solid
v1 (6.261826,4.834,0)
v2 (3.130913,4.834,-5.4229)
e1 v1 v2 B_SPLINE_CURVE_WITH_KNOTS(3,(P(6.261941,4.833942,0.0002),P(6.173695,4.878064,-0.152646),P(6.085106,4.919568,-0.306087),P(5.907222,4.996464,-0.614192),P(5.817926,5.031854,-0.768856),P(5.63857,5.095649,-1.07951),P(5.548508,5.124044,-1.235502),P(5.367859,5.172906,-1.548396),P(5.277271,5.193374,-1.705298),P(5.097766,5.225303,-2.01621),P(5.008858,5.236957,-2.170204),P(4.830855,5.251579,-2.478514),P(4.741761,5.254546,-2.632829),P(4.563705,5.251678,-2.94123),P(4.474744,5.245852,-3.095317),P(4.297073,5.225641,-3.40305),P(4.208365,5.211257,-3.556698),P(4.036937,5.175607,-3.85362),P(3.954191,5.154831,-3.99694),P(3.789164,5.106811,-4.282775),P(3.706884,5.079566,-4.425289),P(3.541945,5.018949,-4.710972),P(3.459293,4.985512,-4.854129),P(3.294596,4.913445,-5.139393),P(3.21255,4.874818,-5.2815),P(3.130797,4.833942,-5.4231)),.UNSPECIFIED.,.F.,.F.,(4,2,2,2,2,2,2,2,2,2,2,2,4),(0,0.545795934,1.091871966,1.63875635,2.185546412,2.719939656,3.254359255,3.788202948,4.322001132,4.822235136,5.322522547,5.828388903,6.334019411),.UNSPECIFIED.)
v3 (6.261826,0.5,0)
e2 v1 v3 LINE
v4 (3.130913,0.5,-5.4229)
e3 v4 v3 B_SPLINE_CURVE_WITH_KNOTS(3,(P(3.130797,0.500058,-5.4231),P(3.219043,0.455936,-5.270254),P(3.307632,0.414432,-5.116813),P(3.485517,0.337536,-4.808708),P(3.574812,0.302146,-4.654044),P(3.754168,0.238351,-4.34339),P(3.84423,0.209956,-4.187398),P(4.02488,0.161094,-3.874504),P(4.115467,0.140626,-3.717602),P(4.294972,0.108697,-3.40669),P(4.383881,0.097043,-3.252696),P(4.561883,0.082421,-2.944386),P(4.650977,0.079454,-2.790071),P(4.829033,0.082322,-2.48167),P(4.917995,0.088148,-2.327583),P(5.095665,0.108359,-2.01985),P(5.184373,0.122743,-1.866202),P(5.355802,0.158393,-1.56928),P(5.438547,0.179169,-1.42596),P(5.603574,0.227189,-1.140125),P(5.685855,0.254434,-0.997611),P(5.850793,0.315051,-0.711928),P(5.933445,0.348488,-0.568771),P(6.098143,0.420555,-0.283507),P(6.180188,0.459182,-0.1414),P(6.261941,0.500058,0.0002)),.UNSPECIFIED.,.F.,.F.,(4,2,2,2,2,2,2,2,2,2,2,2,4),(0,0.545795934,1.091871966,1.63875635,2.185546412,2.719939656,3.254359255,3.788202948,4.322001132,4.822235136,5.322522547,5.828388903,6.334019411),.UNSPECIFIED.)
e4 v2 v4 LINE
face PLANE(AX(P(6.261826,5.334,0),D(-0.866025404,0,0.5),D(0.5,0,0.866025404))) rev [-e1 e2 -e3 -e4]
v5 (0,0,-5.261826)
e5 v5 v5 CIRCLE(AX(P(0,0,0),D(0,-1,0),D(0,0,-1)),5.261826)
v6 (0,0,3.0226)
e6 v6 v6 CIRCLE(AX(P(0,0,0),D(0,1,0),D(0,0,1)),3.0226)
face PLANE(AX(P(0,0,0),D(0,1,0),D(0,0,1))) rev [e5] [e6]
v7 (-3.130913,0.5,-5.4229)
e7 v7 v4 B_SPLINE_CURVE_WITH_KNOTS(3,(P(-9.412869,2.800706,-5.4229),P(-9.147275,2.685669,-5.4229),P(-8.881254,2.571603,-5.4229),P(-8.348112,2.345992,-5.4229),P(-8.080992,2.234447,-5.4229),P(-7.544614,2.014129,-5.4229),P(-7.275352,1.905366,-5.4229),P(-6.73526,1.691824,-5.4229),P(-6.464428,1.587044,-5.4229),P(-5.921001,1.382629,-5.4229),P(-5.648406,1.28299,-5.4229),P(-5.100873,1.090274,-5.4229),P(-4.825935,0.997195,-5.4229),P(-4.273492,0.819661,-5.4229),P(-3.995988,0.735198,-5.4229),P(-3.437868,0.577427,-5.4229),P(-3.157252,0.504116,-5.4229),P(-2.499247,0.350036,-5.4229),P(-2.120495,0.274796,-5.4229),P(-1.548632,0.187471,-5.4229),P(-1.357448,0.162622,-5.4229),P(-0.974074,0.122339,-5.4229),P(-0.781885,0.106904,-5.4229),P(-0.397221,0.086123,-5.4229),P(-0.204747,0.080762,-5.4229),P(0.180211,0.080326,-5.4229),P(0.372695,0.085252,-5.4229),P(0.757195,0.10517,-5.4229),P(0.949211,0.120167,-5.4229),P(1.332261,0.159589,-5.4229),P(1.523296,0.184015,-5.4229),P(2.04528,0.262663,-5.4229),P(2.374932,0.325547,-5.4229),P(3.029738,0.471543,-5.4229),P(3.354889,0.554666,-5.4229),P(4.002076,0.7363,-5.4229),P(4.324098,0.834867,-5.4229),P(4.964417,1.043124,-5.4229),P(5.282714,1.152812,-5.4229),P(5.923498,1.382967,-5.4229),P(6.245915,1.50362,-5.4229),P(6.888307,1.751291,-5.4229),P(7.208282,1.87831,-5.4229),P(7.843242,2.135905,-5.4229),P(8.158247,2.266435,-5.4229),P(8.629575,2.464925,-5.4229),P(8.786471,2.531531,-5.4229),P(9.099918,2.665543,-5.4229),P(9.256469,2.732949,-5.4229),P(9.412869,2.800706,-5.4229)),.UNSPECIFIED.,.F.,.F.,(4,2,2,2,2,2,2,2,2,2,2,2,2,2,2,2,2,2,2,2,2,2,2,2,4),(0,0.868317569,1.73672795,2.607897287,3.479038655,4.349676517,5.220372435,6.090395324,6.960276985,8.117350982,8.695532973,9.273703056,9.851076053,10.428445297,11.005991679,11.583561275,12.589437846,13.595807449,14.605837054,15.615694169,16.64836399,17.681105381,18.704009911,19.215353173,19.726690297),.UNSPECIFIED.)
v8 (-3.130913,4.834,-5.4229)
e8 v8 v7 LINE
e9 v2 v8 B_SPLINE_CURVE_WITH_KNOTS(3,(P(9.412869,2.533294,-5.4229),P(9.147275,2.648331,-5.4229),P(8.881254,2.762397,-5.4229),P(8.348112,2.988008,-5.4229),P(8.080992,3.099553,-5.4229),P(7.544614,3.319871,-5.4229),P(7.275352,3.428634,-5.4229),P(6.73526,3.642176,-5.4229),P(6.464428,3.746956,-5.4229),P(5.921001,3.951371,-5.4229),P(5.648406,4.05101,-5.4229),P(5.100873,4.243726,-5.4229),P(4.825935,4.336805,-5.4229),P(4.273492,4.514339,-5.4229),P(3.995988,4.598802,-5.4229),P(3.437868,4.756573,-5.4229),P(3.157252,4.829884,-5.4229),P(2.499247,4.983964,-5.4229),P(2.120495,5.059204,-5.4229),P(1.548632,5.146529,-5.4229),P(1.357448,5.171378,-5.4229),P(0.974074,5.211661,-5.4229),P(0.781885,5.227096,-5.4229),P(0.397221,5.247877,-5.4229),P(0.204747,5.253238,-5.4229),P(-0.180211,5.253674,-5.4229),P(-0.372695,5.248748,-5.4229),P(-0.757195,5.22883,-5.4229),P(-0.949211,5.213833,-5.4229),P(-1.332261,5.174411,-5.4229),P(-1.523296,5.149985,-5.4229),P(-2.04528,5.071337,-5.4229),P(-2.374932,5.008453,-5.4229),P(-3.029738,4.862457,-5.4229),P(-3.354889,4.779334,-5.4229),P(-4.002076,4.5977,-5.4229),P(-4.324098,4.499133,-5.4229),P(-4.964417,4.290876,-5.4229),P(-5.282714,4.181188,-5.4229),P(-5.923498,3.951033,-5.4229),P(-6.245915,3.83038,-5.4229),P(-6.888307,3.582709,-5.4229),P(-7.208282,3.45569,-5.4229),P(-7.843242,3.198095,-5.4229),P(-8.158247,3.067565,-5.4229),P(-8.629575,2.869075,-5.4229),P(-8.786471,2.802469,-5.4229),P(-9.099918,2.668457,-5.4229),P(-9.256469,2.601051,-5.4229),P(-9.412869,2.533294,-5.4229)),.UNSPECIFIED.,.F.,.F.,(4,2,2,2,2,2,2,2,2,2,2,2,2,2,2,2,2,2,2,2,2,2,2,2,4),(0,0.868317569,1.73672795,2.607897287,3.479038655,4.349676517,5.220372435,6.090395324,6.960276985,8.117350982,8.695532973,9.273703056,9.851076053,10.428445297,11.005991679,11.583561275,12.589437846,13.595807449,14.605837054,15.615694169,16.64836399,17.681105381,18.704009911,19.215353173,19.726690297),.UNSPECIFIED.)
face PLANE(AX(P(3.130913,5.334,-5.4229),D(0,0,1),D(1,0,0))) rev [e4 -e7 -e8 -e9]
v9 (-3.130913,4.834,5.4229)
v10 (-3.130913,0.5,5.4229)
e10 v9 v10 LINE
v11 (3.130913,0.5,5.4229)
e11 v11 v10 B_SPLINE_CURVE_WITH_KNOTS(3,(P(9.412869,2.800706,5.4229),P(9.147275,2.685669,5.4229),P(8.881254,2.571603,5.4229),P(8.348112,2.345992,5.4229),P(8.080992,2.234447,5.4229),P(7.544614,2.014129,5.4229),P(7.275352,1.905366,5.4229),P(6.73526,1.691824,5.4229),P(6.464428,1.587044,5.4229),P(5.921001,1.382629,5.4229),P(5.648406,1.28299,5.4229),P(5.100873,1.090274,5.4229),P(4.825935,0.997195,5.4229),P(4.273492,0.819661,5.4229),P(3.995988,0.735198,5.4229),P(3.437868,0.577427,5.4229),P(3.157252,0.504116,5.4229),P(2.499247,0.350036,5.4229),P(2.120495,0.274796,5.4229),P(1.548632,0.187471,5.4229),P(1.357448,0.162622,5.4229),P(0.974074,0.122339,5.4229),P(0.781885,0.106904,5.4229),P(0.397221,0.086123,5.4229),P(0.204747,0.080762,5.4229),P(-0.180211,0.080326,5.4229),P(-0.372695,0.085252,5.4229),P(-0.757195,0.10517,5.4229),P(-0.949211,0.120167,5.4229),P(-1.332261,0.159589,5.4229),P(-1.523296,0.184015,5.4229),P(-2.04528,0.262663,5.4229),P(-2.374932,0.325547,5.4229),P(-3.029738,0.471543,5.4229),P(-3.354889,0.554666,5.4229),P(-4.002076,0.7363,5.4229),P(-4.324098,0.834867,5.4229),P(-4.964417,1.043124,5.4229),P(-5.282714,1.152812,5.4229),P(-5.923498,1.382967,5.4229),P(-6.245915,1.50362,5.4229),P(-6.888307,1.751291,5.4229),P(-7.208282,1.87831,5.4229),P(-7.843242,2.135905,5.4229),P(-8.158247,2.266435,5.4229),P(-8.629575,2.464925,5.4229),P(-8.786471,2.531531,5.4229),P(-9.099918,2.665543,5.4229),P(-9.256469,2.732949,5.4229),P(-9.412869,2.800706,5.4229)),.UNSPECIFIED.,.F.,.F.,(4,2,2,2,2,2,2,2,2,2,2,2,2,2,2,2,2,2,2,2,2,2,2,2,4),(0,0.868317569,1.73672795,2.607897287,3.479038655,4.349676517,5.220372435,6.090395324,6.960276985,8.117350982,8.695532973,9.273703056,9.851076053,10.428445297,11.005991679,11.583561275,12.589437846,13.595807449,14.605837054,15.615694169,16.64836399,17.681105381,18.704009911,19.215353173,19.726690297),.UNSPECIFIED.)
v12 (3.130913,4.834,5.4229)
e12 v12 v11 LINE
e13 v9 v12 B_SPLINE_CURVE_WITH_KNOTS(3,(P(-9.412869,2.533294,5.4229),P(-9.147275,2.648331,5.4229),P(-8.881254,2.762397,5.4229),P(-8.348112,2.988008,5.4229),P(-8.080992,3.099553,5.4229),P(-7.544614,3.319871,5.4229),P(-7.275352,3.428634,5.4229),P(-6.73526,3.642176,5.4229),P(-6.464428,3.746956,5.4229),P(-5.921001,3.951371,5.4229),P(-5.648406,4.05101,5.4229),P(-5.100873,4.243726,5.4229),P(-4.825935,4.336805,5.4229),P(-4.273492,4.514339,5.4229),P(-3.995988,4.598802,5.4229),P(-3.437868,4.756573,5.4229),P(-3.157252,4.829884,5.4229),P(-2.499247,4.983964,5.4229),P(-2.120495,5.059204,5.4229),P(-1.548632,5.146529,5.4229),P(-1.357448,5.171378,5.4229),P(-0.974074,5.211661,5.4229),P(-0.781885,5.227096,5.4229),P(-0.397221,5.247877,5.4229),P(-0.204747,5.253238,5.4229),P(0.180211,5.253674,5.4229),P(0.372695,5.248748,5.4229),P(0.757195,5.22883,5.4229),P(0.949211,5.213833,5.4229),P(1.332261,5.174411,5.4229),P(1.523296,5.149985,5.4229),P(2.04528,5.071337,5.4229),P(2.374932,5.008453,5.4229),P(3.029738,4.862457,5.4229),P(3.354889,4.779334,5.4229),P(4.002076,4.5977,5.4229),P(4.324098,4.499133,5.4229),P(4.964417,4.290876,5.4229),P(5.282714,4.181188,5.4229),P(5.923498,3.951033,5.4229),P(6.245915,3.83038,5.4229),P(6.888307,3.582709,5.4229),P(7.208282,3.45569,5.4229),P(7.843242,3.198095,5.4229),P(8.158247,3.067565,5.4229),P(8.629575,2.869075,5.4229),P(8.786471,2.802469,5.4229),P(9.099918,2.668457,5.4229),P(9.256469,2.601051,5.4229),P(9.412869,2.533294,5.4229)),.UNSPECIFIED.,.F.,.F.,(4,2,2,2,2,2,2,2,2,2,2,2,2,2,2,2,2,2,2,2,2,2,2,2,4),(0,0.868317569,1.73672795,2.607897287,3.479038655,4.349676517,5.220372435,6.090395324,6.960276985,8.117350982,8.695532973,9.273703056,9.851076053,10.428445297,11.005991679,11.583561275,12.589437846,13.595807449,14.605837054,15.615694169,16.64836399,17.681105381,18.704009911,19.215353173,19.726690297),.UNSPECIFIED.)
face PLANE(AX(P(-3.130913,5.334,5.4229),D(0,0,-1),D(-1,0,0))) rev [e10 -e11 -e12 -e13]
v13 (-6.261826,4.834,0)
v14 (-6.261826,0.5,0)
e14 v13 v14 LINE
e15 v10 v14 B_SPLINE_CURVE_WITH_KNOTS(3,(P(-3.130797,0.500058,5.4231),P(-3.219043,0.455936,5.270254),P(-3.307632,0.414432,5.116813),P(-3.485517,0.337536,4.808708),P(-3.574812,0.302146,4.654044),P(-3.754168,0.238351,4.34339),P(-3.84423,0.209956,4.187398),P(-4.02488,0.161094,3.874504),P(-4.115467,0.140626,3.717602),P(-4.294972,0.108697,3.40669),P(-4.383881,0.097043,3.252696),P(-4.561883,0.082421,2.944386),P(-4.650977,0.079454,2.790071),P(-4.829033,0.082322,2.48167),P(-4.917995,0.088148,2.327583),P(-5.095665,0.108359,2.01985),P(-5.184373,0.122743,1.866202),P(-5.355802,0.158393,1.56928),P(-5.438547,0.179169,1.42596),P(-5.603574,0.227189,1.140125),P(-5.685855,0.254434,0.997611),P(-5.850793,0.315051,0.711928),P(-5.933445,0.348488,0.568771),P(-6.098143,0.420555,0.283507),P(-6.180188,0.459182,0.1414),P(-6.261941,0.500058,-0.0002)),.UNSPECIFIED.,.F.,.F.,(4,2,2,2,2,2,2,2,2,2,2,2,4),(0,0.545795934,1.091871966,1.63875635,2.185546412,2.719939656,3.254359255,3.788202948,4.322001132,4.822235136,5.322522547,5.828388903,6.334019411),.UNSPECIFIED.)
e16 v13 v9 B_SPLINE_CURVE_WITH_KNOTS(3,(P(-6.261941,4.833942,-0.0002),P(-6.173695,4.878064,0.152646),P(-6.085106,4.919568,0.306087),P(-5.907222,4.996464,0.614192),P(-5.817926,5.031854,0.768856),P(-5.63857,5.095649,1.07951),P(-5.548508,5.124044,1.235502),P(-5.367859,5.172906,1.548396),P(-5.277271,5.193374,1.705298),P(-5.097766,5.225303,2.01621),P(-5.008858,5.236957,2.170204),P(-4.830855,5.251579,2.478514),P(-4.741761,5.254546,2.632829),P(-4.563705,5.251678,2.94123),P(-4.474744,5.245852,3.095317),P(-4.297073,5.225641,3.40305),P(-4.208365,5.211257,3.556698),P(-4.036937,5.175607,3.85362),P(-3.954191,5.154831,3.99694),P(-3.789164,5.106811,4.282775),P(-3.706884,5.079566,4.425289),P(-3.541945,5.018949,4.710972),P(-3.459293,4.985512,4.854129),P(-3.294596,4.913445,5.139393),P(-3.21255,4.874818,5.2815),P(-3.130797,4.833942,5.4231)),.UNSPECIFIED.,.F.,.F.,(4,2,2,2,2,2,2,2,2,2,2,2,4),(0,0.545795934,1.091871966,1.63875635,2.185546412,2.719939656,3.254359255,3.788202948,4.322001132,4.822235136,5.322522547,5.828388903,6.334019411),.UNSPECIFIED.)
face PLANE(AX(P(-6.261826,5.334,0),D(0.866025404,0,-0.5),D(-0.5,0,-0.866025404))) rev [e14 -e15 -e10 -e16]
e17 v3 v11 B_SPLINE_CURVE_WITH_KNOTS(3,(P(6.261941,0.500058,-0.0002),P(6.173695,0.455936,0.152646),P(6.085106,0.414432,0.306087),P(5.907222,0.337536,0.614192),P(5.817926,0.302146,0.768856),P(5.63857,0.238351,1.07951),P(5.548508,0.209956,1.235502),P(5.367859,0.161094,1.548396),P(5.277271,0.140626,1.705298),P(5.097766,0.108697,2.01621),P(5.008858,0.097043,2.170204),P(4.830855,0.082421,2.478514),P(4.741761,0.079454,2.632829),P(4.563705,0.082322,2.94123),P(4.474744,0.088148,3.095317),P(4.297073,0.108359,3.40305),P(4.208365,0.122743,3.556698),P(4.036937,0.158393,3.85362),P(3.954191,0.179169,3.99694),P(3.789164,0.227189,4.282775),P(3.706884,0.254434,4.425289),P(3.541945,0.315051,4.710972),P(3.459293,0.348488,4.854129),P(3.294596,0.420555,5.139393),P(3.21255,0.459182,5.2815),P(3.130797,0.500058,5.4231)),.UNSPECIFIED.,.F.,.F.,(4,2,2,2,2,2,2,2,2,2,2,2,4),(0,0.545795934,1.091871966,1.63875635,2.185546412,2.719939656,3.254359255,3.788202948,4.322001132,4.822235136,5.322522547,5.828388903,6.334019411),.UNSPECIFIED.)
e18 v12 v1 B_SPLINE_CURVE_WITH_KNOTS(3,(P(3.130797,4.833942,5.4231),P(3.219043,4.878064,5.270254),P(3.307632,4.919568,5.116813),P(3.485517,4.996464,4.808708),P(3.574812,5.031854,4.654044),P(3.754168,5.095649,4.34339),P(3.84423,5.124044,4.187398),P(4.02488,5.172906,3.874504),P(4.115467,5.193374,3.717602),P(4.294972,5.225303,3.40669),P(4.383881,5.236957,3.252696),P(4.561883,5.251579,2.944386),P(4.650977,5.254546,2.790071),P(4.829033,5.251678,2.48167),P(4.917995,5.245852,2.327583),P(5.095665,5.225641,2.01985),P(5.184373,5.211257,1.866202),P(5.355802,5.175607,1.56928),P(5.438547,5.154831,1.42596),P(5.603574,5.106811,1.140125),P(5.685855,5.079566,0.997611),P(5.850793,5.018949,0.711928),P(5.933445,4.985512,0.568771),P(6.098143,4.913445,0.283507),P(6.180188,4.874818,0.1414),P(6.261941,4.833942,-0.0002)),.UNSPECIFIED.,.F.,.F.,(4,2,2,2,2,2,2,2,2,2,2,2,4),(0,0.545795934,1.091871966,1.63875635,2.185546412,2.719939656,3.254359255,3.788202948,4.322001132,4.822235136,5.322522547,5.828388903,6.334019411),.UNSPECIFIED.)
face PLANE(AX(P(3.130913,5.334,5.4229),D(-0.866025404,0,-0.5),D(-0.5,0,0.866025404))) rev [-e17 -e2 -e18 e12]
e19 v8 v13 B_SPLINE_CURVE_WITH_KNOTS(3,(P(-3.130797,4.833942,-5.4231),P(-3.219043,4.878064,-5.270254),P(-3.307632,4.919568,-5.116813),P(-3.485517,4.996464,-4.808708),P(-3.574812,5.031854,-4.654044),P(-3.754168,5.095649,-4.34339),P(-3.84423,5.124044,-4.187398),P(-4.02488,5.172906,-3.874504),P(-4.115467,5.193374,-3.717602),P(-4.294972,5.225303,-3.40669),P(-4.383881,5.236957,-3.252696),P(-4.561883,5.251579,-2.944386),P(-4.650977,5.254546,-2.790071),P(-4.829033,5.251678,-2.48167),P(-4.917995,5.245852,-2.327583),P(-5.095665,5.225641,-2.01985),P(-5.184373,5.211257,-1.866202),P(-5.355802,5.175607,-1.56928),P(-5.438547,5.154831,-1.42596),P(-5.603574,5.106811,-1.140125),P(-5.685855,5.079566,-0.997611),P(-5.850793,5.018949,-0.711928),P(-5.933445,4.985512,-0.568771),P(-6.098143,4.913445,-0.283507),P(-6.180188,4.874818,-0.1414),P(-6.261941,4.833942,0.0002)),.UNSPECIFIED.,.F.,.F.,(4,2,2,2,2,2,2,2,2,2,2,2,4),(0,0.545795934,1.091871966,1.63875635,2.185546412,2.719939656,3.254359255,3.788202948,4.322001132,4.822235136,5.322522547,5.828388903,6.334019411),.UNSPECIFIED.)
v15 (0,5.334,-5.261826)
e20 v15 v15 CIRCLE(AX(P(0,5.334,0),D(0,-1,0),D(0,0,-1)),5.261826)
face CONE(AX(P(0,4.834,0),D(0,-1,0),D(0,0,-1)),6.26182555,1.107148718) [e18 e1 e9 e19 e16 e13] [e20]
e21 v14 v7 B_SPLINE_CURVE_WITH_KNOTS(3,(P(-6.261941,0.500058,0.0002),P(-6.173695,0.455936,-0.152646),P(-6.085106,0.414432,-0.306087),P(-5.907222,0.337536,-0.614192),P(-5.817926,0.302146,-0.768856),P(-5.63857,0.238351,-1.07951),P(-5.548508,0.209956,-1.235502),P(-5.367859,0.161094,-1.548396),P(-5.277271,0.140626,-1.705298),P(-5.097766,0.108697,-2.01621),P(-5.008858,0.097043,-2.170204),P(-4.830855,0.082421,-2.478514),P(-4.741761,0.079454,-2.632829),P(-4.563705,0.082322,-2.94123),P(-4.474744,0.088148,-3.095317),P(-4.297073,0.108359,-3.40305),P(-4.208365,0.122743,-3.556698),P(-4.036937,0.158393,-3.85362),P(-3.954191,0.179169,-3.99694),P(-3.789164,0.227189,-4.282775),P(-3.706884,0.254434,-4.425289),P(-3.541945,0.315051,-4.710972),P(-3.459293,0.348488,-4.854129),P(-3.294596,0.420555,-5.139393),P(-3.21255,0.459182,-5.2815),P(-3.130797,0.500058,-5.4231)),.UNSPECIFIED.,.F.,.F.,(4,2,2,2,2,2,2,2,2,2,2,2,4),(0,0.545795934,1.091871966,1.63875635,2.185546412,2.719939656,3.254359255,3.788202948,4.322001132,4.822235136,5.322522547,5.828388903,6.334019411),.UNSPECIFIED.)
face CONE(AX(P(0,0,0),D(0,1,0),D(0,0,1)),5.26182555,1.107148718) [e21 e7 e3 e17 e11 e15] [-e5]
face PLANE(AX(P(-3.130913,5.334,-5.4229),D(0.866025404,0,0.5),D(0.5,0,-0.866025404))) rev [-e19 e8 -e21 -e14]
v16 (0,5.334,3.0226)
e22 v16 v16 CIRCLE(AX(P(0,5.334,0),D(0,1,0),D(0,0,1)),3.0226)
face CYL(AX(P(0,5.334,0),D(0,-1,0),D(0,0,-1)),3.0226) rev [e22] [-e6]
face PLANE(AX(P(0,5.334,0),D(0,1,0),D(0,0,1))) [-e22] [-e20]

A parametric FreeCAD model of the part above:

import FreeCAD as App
import Part
import Sketcher
from FreeCAD import Vector
Q = App.Units.Quantity


def add_polygon(sketch, points):
    """Adds a closed chain of lines whose ends are joined by coincident constraints."""
    first, n = sketch.GeometryCount, len(points)
    for a, b in zip(points, points[1:] + points[:1]):
        sketch.addGeometry(Part.LineSegment(App.Vector(*a, 0), App.Vector(*b, 0)), False)
    for i in range(n):
        sketch.addConstraint(Sketcher.Constraint("Coincident", first + i, 2, first + (i + 1) % n, 1))

doc = App.newDocument("Part")
body = doc.addObject("PartDesign::Body", "Body")

# Sketch on XZ plane
sketch1 = doc.addObject("Sketcher::SketchObject", "Sketch")
body.addObject(sketch1)
sketch1.AttachmentSupport = (doc.XZ_Plane, [""])
sketch1.MapMode = "FlatFace"
add_polygon(sketch1, [(-6.3, 0), (-3.1, 5.4), (3.1, 5.4), (6.3, 0), (3.1, -5.4), (-3.1, -5.4)])  # lines 0-5
sketch1.addGeometry(Part.Circle(Vector(0, 0, 0), Vector(0, 0, 1), 3), False)  # 6
sketch1.addConstraint(Sketcher.Constraint("Horizontal", 1))
sketch1.addConstraint(Sketcher.Constraint("Horizontal", 4))
sketch1.addConstraint(Sketcher.Constraint("Coincident", 6, 3, -1, 1))
sketch1.addConstraint(Sketcher.Constraint("Symmetric", 0, 2, 3, 2, -1, 1))
sketch1.addConstraint(Sketcher.Constraint("Symmetric", 2, 2, 5, 2, -1, 1))
sketch1.addConstraint(Sketcher.Constraint("PointOnObject", 2, 2, -1))
sketch1.addConstraint(Sketcher.Constraint("Parallel", 2, 5))
sketch1.addConstraint(Sketcher.Constraint("Vertical", 1, 2, 3, 2))
sketch1.addConstraint(Sketcher.Constraint("Angle", 0, Q("60 deg")))
sketch1.addConstraint(Sketcher.Constraint("Diameter", 6, Q("6.0452 mm")))
sketch1.addConstraint(Sketcher.Constraint("DistanceY", -1, 1, 0, 2, Q("5.4229 mm")))
sketch1.addConstraint(Sketcher.Constraint("DistanceX", 1, 1, 1, 2, Q("6.261826 mm")))
pad1 = doc.addObject("PartDesign::Pad", "Pad")
body.addObject(pad1)
pad1.Profile = sketch1
pad1.Length = 5.334
pad1.Reversed = True

# Sketch on XY plane
sketch2 = doc.addObject("Sketcher::SketchObject", "Sketch001")
body.addObject(sketch2)
sketch2.AttachmentSupport = (doc.XY_Plane, [""])
sketch2.MapMode = "FlatFace"
add_polygon(sketch2, [(-6.3, 5.3), (-6.3, 4.8), (-5.3, 5.3)])  # lines 0-2
sketch2.addConstraint(Sketcher.Constraint("Vertical", 0))
sketch2.addConstraint(Sketcher.Constraint("Horizontal", 2))
sketch2.addConstraint(Sketcher.Constraint("DistanceX", 2, 2, 2, 1, Q("1 mm")))
sketch2.addConstraint(Sketcher.Constraint("DistanceY", 0, 2, 0, 1, Q("0.5 mm")))
sketch2.addConstraint(Sketcher.Constraint("DistanceY", -1, 1, 0, 2, Q("4.834 mm")))
sketch2.addConstraint(Sketcher.Constraint("DistanceX", 0, 2, -1, 1, Q("6.261826 mm")))
groove = doc.addObject("PartDesign::Groove", "Groove")
body.addObject(groove)
groove.Profile = sketch2
groove.ReferenceAxis = (sketch2, ["V_Axis"])
groove.Angle = 360

# Sketch on XY plane
sketch3 = doc.addObject("Sketcher::SketchObject", "Sketch002")
body.addObject(sketch3)
sketch3.AttachmentSupport = (doc.XY_Plane, [""])
sketch3.MapMode = "FlatFace"
add_polygon(sketch3, [(-6.3, 0), (-5.3, 0), (-6.3, 0.5)])  # lines 0-2
sketch3.addConstraint(Sketcher.Constraint("Horizontal", 0))
sketch3.addConstraint(Sketcher.Constraint("Vertical", 2))
sketch3.addConstraint(Sketcher.Constraint("PointOnObject", 0, 2, -1))
sketch3.addConstraint(Sketcher.Constraint("DistanceX", 0, 1, 0, 2, Q("1 mm")))
sketch3.addConstraint(Sketcher.Constraint("DistanceY", 2, 2, 2, 1, Q("0.5 mm")))
sketch3.addConstraint(Sketcher.Constraint("DistanceX", 0, 2, -1, 1, Q("5.261826 mm")))
groove2 = doc.addObject("PartDesign::Groove", "Groove001")
body.addObject(groove2)
groove2.Profile = sketch3
groove2.ReferenceAxis = (sketch3, ["V_Axis"])
groove2.Angle = 360

doc.recompute()
